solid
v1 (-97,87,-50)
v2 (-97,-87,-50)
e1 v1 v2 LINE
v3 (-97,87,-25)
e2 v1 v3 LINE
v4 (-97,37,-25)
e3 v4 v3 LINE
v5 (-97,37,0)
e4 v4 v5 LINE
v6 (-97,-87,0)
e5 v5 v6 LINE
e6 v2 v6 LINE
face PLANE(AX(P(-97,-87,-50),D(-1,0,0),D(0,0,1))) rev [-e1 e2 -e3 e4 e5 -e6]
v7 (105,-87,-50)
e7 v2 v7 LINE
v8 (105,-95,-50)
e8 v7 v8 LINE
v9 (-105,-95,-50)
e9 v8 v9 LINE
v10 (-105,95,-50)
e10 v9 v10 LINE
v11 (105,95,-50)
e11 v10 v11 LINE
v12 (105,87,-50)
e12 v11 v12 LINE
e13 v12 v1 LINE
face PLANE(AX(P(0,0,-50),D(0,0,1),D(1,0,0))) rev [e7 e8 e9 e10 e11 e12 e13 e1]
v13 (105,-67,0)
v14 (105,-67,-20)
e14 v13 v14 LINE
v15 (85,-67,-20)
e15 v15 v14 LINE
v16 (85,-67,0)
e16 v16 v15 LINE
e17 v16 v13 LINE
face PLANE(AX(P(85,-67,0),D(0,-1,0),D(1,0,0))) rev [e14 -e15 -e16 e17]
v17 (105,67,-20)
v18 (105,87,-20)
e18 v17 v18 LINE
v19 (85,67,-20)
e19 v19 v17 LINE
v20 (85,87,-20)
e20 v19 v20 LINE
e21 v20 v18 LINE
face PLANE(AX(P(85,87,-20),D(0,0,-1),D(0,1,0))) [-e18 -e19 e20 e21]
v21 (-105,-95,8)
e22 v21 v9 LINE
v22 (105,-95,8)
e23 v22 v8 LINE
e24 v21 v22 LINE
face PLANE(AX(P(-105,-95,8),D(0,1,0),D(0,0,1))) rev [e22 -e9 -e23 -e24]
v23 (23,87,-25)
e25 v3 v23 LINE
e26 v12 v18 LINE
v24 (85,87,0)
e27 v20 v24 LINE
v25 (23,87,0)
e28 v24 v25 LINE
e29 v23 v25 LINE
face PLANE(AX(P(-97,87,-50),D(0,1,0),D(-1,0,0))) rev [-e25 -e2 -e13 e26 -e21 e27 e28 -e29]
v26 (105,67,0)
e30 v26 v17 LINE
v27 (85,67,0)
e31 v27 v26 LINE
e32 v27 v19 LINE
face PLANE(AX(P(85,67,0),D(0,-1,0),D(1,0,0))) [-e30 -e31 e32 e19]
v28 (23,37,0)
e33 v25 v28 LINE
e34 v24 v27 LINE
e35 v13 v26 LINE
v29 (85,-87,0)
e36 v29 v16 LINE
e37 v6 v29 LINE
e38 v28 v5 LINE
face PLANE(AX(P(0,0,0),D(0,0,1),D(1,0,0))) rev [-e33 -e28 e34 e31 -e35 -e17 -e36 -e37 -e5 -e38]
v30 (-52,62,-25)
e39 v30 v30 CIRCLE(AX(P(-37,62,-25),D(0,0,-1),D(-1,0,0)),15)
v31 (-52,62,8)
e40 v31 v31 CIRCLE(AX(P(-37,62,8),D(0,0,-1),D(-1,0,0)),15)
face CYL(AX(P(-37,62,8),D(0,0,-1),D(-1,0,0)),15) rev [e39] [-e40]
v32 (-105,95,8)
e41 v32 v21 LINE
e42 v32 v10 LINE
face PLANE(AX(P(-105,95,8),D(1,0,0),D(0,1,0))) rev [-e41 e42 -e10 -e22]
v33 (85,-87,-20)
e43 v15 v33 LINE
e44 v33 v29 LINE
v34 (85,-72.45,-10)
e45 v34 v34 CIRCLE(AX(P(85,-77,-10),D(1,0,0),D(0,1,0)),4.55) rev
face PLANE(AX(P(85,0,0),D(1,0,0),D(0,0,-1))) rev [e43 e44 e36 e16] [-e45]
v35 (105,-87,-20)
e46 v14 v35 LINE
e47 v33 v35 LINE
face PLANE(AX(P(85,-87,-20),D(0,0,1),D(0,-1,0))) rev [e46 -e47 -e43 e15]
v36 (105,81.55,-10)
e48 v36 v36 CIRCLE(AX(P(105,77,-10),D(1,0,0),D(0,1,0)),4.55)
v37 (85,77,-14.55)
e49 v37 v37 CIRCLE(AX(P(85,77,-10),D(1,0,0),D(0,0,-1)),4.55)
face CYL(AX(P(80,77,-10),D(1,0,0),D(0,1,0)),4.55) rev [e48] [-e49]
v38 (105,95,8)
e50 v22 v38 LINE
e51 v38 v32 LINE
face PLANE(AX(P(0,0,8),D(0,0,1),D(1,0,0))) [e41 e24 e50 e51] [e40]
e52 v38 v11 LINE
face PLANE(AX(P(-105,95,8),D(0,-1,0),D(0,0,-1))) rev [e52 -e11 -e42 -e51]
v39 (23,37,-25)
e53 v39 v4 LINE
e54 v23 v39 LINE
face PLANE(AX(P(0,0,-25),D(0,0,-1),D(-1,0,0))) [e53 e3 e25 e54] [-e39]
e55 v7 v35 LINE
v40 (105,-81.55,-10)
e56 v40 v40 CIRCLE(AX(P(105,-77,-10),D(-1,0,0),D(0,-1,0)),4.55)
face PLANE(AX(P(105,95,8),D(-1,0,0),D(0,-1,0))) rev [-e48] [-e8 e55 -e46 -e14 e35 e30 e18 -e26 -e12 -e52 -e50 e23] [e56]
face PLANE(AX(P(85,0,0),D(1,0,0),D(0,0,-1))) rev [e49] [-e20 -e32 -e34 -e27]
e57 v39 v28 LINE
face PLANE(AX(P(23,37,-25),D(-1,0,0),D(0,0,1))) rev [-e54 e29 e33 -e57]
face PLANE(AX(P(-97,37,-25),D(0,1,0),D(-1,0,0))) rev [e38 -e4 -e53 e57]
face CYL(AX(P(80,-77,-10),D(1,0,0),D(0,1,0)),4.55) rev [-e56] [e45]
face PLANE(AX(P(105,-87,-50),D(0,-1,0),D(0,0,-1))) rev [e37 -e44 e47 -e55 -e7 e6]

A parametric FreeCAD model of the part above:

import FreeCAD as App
import Part
import Sketcher
from FreeCAD import Vector

doc = App.newDocument("Part")
params = doc.addObject("Spreadsheet::Sheet", "Params")
for row, (alias, value) in enumerate([
    ("sketch1_width", "210 mm"),
    ("sketch1_height", "190 mm"),
    ("pad1_length", "8 mm"),
    ("sketch2_width", "210 mm"),
    ("sketch2_width2", "202 mm"),
    ("sketch2_height", "8 mm"),
    ("sketch2_height2", "174 mm"),
    ("pad2_length", "50 mm"),
    ("sketch3_width", "20 mm"),
    ("pad3_length", "20 mm"),
    ("sketch4_diameter", "9.1 mm"),
    ("pocket1_length", "25 mm"),
    ("sketch5_width", "120 mm"),
    ("sketch5_height", "50 mm"),
    ("pad4_length", "25 mm"),
    ("sketch6_diameter", "30 mm"),
], start=1):
    params.set(f"A{row}", alias)
    params.set(f"B{row}", "=" + value)
    params.setAlias(f"B{row}", alias)

body = doc.addObject("PartDesign::Body", "Body")

sketch1 = doc.addObject("Sketcher::SketchObject", "Sketch")
body.addObject(sketch1)
sketch1.AttachmentSupport = (doc.XY_Plane, [""])
sketch1.MapMode = "FlatFace"
sketch1.addGeometry([
    Part.LineSegment(Vector(-105, 95, 0), Vector(-105, -95, 0)),
    Part.LineSegment(Vector(-105, -95, 0), Vector(105, -95, 0)),
    Part.LineSegment(Vector(105, -95, 0), Vector(105, 95, 0)),
    Part.LineSegment(Vector(105, 95, 0), Vector(-105, 95, 0)),
], False)
sketch1.addConstraint([
    Sketcher.Constraint("Coincident", 0, 2, 1, 1),
    Sketcher.Constraint("Coincident", 1, 2, 2, 1),
    Sketcher.Constraint("Coincident", 2, 2, 3, 1),
    Sketcher.Constraint("Coincident", 3, 2, 0, 1),
    Sketcher.Constraint("Vertical", 0),
    Sketcher.Constraint("Horizontal", 1),
    Sketcher.Constraint("Vertical", 2),
    Sketcher.Constraint("Horizontal", 3),
    Sketcher.Constraint("Symmetric", 0, 2, 2, 2, -1, 1),
    Sketcher.Constraint("DistanceX", 1, 1, 1, 2, 210.0),
    Sketcher.Constraint("DistanceY", 0, 2, 0, 1, 190.0),
])
sketch1.setExpression("Constraints[9]", "Params.sketch1_width")
sketch1.setExpression("Constraints[10]", "Params.sketch1_height")
pad1 = doc.addObject("PartDesign::Pad", "Pad")
body.addObject(pad1)
pad1.Profile = sketch1
pad1.setExpression("Length", "Params.pad1_length")

sketch2 = doc.addObject("Sketcher::SketchObject", "Sketch001")
body.addObject(sketch2)
sketch2.AttachmentSupport = (doc.XY_Plane, [""])
sketch2.MapMode = "FlatFace"
sketch2.addGeometry([
    Part.LineSegment(Vector(-105, 95, 0), Vector(105, 95, 0)),
    Part.LineSegment(Vector(105, 95, 0), Vector(105, 87, 0)),
    Part.LineSegment(Vector(105, 87, 0), Vector(-97, 87, 0)),
    Part.LineSegment(Vector(-97, 87, 0), Vector(-97, -87, 0)),
    Part.LineSegment(Vector(-97, -87, 0), Vector(105, -87, 0)),
    Part.LineSegment(Vector(105, -87, 0), Vector(105, -95, 0)),
    Part.LineSegment(Vector(105, -95, 0), Vector(-105, -95, 0)),
    Part.LineSegment(Vector(-105, -95, 0), Vector(-105, 95, 0)),
], False)
sketch2.addConstraint([
    Sketcher.Constraint("Coincident", 0, 2, 1, 1),
    Sketcher.Constraint("Coincident", 1, 2, 2, 1),
    Sketcher.Constraint("Coincident", 2, 2, 3, 1),
    Sketcher.Constraint("Coincident", 3, 2, 4, 1),
    Sketcher.Constraint("Coincident", 4, 2, 5, 1),
    Sketcher.Constraint("Coincident", 5, 2, 6, 1),
    Sketcher.Constraint("Coincident", 6, 2, 7, 1),
    Sketcher.Constraint("Coincident", 7, 2, 0, 1),
    Sketcher.Constraint("Horizontal", 0),
    Sketcher.Constraint("Vertical", 1),
    Sketcher.Constraint("Horizontal", 2),
    Sketcher.Constraint("Vertical", 3),
    Sketcher.Constraint("Horizontal", 4),
    Sketcher.Constraint("Vertical", 5),
    Sketcher.Constraint("Horizontal", 6),
    Sketcher.Constraint("Vertical", 7),
    Sketcher.Constraint("Symmetric", 0, 2, 6, 2, -1, 1),
    Sketcher.Constraint("Symmetric", 1, 2, 4, 2, -1),
    Sketcher.Constraint("DistanceX", 0, 1, 0, 2, 210.0),
    Sketcher.Constraint("DistanceX", 2, 2, 2, 1, 202.0),
    Sketcher.Constraint("DistanceY", 1, 2, 1, 1, 8.0),
    Sketcher.Constraint("DistanceY", 3, 2, 3, 1, 174.0),
])
sketch2.setExpression("Constraints[18]", "Params.sketch2_width")
sketch2.setExpression("Constraints[19]", "Params.sketch2_width2")
sketch2.setExpression("Constraints[20]", "Params.sketch2_height")
sketch2.setExpression("Constraints[21]", "Params.sketch2_height2")
pad2 = doc.addObject("PartDesign::Pad", "Pad001")
body.addObject(pad2)
pad2.Profile = sketch2
pad2.setExpression("Length", "Params.pad2_length")
pad2.Reversed = True

sketch3 = doc.addObject("Sketcher::SketchObject", "Sketch002")
body.addObject(sketch3)
sketch3.AttachmentSupport = (doc.YZ_Plane, [""])
sketch3.MapMode = "FlatFace"
sketch3.AttachmentOffset = App.Placement(Vector(0, 0, 105), App.Rotation())
sketch3.addGeometry([
    Part.LineSegment(Vector(87, 0, 0), Vector(67, 0, 0)),
    Part.LineSegment(Vector(67, 0, 0), Vector(67, -20, 0)),
    Part.LineSegment(Vector(67, -20, 0), Vector(87, -20, 0)),
    Part.LineSegment(Vector(87, -20, 0), Vector(87, 0, 0)),
], False)
sketch3.addConstraint([
    Sketcher.Constraint("Coincident", 0, 2, 1, 1),
    Sketcher.Constraint("Coincident", 1, 2, 2, 1),
    Sketcher.Constraint("Coincident", 2, 2, 3, 1),
    Sketcher.Constraint("Coincident", 3, 2, 0, 1),
    Sketcher.Constraint("Horizontal", 0),
    Sketcher.Constraint("Vertical", 1),
    Sketcher.Constraint("Horizontal", 2),
    Sketcher.Constraint("Vertical", 3),
    Sketcher.Constraint("PointOnObject", 0, 2, -1),
    Sketcher.Constraint("Equal", 2, 1),
    Sketcher.Constraint("DistanceX", 0, 2, 0, 1, 20.0),
    Sketcher.Constraint("DistanceX", -1, 1, 0, 2, 67.0),
])
sketch3.setExpression("Constraints[10]", "Params.sketch3_width")
pad3 = doc.addObject("PartDesign::Pad", "Pad002")
body.addObject(pad3)
pad3.Profile = sketch3
pad3.setExpression("Length", "Params.pad3_length")
pad3.Reversed = True

sketch4 = doc.addObject("Sketcher::SketchObject", "Sketch003")
body.addObject(sketch4)
sketch4.AttachmentSupport = (doc.YZ_Plane, [""])
sketch4.MapMode = "FlatFace"
sketch4.AttachmentOffset = App.Placement(Vector(0, 0, 105), App.Rotation())
sketch4.addGeometry(Part.Circle(Vector(77, -10, 0), Vector(0, 0, 1), 4.5), False)
sketch4.addConstraint([
    Sketcher.Constraint("Diameter", 0, 9.1),
    Sketcher.Constraint("DistanceX", -1, 1, 0, 3, 77.0),
    Sketcher.Constraint("DistanceY", 0, 3, -1, 1, 10.0),
])
sketch4.setExpression("Constraints[0]", "Params.sketch4_diameter")
pocket1 = doc.addObject("PartDesign::Pocket", "Pocket")
body.addObject(pocket1)
pocket1.Profile = sketch4
pocket1.setExpression("Length", "Params.pocket1_length")
doc.recompute()

mirrored = doc.addObject("PartDesign::Mirrored", "Mirrored")
body.addObject(mirrored)
mirrored.Originals = [pad3, pocket1]
mirrored.MirrorPlane = (doc.XZ_Plane, [""])
body.Tip = mirrored

sketch5 = doc.addObject("Sketcher::SketchObject", "Sketch004")
body.addObject(sketch5)
sketch5.AttachmentSupport = (doc.XY_Plane, [""])
sketch5.MapMode = "FlatFace"
sketch5.addGeometry([
    Part.LineSegment(Vector(23, 87, 0), Vector(23, 37, 0)),
    Part.LineSegment(Vector(23, 37, 0), Vector(-97, 37, 0)),
    Part.LineSegment(Vector(-97, 37, 0), Vector(-97, 87, 0)),
    Part.LineSegment(Vector(-97, 87, 0), Vector(23, 87, 0)),
], False)
sketch5.addConstraint([
    Sketcher.Constraint("Coincident", 0, 2, 1, 1),
    Sketcher.Constraint("Coincident", 1, 2, 2, 1),
    Sketcher.Constraint("Coincident", 2, 2, 3, 1),
    Sketcher.Constraint("Coincident", 3, 2, 0, 1),
    Sketcher.Constraint("Vertical", 0),
    Sketcher.Constraint("Horizontal", 1),
    Sketcher.Constraint("Vertical", 2),
    Sketcher.Constraint("Horizontal", 3),
    Sketcher.Constraint("DistanceX", 1, 2, 1, 1, 120.0),
    Sketcher.Constraint("DistanceY", 0, 2, 0, 1, 50.0),
    Sketcher.Constraint("DistanceX", -1, 1, 0, 2, 23.0),
    Sketcher.Constraint("DistanceY", -1, 1, 0, 2, 37.0),
])
sketch5.setExpression("Constraints[8]", "Params.sketch5_width")
sketch5.setExpression("Constraints[9]", "Params.sketch5_height")
pad4 = doc.addObject("PartDesign::Pad", "Pad003")
body.addObject(pad4)
pad4.Profile = sketch5
pad4.setExpression("Length", "Params.pad4_length")
pad4.Reversed = True

sketch6 = doc.addObject("Sketcher::SketchObject", "Sketch005")
body.addObject(sketch6)
sketch6.AttachmentSupport = (doc.XY_Plane, [""])
sketch6.MapMode = "FlatFace"
sketch6.AttachmentOffset = App.Placement(Vector(0, 0, -25), App.Rotation())
sketch6.addGeometry(Part.Circle(Vector(-37, 62, 0), Vector(0, 0, 1), 15), False)
sketch6.addConstraint([
    Sketcher.Constraint("Diameter", 0, 30.0),
    Sketcher.Constraint("DistanceX", 0, 3, -1, 1, 37.0),
    Sketcher.Constraint("DistanceY", -1, 1, 0, 3, 62.0),
])
sketch6.setExpression("Constraints[0]", "Params.sketch6_diameter")
pocket2 = doc.addObject("PartDesign::Pocket", "Pocket001")
body.addObject(pocket2)
pocket2.Profile = sketch6
pocket2.Type = "ThroughAll"
pocket2.Reversed = True

doc.recompute()
